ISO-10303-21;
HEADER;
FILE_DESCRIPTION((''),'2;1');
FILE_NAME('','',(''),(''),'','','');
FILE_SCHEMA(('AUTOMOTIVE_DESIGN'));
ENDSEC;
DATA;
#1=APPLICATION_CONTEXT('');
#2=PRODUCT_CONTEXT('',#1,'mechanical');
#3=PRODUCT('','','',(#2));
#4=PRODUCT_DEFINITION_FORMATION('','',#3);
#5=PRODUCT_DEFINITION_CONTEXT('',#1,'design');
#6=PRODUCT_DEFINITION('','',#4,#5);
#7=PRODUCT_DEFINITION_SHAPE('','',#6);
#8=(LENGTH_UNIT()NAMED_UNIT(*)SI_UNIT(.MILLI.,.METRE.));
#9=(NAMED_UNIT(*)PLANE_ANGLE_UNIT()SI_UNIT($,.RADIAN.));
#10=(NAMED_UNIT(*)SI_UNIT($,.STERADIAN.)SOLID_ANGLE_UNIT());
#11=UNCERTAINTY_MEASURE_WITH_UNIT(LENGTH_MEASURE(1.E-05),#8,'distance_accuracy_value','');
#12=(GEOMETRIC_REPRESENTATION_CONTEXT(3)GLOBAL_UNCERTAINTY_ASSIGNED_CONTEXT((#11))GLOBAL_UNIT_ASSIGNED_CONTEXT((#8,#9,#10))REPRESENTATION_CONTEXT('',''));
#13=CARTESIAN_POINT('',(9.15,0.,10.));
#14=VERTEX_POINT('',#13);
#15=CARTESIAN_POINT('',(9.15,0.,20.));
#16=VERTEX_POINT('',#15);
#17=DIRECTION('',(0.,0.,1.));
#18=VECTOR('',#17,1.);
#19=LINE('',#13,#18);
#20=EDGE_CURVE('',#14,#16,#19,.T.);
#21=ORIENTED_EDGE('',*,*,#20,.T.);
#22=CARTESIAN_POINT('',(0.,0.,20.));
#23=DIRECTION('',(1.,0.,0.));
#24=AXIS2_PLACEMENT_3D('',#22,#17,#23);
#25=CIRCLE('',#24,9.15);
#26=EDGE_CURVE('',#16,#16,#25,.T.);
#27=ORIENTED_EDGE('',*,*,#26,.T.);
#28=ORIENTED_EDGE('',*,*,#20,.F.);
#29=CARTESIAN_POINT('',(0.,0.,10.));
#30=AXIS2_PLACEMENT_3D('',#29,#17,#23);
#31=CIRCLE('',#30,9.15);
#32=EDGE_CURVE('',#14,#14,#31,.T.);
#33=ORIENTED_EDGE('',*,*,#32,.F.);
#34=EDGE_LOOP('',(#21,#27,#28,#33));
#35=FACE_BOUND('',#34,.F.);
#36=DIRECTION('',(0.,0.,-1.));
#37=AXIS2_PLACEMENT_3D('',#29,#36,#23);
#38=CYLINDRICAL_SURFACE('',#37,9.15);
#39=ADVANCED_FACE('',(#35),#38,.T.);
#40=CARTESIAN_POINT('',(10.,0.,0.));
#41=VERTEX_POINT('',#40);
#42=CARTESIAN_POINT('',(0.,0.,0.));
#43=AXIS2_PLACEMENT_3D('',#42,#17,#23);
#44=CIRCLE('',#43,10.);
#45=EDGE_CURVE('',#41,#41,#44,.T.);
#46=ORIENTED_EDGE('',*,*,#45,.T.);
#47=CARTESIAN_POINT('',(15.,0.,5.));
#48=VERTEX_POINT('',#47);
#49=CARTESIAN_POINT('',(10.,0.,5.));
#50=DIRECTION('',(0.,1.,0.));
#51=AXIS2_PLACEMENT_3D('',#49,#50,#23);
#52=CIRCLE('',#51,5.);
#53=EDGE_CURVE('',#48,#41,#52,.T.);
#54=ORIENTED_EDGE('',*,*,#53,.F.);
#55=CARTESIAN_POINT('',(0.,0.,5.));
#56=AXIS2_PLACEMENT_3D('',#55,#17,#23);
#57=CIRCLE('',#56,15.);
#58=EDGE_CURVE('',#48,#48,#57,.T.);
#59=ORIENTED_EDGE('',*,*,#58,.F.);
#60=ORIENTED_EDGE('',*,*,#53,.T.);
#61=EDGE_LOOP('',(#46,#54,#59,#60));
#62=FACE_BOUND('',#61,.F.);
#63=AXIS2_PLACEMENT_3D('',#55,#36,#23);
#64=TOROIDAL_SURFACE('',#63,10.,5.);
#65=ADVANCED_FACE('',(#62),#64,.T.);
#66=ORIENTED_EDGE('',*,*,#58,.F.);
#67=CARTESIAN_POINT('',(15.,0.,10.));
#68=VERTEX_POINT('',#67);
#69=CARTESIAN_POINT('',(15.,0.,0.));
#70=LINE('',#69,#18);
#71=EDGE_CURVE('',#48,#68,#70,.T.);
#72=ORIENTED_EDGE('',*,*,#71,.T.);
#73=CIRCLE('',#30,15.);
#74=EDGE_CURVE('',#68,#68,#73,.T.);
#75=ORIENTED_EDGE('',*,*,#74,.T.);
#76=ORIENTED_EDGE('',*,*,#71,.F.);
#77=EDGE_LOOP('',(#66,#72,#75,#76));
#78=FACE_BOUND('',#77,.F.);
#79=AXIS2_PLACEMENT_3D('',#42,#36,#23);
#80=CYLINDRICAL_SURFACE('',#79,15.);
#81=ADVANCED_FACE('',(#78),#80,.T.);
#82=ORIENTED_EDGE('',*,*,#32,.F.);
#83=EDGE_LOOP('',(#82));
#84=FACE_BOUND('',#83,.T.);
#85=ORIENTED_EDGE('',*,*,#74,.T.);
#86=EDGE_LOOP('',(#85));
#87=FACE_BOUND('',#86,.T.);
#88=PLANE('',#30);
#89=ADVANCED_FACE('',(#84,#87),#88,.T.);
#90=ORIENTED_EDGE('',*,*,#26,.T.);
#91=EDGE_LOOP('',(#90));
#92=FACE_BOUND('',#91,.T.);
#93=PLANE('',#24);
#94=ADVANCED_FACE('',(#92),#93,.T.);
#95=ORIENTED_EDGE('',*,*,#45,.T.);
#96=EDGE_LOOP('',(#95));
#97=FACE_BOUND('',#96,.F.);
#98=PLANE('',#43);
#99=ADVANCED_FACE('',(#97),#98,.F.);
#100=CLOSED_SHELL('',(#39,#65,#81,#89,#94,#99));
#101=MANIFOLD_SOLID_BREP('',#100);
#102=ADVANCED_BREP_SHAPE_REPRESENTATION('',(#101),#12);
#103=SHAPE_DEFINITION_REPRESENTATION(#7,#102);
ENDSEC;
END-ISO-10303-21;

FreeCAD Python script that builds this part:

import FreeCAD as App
import Part
import Sketcher

V = App.Vector


def edges_at(feature, points):
    """Names of the edges that pass closest to the given points."""
    edges = feature.Shape.Edges
    near = lambda p: min(range(len(edges)), key=lambda i: edges[i].distToShape(Part.Vertex(*p))[0])
    return sorted({f"Edge{near(p) + 1}" for p in points})

doc = App.newDocument("Part")
body = doc.addObject("PartDesign::Body", "Body")

# Sketch on XY plane
sketch1 = doc.addObject("Sketcher::SketchObject", "Sketch")
body.addObject(sketch1)
sketch1.AttachmentSupport = (doc.XY_Plane, [""])
sketch1.MapMode = "FlatFace"
sketch1.addGeometry(Part.Circle(V(0, 0, 0), V(0, 0, 1), 15), False)
sketch1.addConstraint([
    Sketcher.Constraint("Coincident", 0, 3, -1, 1),
    Sketcher.Constraint("Diameter", 0, 30.0),
])
pad1 = doc.addObject("PartDesign::Pad", "Pad")
body.addObject(pad1)
pad1.Profile = sketch1
pad1.Length = 10

# Sketch on XY plane
sketch2 = doc.addObject("Sketcher::SketchObject", "Sketch001")
body.addObject(sketch2)
sketch2.AttachmentSupport = (doc.XY_Plane, [""])
sketch2.MapMode = "FlatFace"
sketch2.AttachmentOffset = App.Placement(V(0, 0, 10), App.Rotation())
sketch2.addGeometry(Part.Circle(V(0, 0, 0), V(0, 0, 1), 9), False)
sketch2.addConstraint([
    Sketcher.Constraint("Coincident", 0, 3, -1, 1),
    Sketcher.Constraint("Diameter", 0, 18.3),
])
pad2 = doc.addObject("PartDesign::Pad", "Pad001")
body.addObject(pad2)
pad2.Profile = sketch2
pad2.Length = 10
doc.recompute()

fillet = doc.addObject("PartDesign::Fillet", "Fillet")
body.addObject(fillet)
fillet.Base = (pad2, edges_at(pad2, [(-15, 0, 0)]))
fillet.Radius = 5

doc.recompute()
